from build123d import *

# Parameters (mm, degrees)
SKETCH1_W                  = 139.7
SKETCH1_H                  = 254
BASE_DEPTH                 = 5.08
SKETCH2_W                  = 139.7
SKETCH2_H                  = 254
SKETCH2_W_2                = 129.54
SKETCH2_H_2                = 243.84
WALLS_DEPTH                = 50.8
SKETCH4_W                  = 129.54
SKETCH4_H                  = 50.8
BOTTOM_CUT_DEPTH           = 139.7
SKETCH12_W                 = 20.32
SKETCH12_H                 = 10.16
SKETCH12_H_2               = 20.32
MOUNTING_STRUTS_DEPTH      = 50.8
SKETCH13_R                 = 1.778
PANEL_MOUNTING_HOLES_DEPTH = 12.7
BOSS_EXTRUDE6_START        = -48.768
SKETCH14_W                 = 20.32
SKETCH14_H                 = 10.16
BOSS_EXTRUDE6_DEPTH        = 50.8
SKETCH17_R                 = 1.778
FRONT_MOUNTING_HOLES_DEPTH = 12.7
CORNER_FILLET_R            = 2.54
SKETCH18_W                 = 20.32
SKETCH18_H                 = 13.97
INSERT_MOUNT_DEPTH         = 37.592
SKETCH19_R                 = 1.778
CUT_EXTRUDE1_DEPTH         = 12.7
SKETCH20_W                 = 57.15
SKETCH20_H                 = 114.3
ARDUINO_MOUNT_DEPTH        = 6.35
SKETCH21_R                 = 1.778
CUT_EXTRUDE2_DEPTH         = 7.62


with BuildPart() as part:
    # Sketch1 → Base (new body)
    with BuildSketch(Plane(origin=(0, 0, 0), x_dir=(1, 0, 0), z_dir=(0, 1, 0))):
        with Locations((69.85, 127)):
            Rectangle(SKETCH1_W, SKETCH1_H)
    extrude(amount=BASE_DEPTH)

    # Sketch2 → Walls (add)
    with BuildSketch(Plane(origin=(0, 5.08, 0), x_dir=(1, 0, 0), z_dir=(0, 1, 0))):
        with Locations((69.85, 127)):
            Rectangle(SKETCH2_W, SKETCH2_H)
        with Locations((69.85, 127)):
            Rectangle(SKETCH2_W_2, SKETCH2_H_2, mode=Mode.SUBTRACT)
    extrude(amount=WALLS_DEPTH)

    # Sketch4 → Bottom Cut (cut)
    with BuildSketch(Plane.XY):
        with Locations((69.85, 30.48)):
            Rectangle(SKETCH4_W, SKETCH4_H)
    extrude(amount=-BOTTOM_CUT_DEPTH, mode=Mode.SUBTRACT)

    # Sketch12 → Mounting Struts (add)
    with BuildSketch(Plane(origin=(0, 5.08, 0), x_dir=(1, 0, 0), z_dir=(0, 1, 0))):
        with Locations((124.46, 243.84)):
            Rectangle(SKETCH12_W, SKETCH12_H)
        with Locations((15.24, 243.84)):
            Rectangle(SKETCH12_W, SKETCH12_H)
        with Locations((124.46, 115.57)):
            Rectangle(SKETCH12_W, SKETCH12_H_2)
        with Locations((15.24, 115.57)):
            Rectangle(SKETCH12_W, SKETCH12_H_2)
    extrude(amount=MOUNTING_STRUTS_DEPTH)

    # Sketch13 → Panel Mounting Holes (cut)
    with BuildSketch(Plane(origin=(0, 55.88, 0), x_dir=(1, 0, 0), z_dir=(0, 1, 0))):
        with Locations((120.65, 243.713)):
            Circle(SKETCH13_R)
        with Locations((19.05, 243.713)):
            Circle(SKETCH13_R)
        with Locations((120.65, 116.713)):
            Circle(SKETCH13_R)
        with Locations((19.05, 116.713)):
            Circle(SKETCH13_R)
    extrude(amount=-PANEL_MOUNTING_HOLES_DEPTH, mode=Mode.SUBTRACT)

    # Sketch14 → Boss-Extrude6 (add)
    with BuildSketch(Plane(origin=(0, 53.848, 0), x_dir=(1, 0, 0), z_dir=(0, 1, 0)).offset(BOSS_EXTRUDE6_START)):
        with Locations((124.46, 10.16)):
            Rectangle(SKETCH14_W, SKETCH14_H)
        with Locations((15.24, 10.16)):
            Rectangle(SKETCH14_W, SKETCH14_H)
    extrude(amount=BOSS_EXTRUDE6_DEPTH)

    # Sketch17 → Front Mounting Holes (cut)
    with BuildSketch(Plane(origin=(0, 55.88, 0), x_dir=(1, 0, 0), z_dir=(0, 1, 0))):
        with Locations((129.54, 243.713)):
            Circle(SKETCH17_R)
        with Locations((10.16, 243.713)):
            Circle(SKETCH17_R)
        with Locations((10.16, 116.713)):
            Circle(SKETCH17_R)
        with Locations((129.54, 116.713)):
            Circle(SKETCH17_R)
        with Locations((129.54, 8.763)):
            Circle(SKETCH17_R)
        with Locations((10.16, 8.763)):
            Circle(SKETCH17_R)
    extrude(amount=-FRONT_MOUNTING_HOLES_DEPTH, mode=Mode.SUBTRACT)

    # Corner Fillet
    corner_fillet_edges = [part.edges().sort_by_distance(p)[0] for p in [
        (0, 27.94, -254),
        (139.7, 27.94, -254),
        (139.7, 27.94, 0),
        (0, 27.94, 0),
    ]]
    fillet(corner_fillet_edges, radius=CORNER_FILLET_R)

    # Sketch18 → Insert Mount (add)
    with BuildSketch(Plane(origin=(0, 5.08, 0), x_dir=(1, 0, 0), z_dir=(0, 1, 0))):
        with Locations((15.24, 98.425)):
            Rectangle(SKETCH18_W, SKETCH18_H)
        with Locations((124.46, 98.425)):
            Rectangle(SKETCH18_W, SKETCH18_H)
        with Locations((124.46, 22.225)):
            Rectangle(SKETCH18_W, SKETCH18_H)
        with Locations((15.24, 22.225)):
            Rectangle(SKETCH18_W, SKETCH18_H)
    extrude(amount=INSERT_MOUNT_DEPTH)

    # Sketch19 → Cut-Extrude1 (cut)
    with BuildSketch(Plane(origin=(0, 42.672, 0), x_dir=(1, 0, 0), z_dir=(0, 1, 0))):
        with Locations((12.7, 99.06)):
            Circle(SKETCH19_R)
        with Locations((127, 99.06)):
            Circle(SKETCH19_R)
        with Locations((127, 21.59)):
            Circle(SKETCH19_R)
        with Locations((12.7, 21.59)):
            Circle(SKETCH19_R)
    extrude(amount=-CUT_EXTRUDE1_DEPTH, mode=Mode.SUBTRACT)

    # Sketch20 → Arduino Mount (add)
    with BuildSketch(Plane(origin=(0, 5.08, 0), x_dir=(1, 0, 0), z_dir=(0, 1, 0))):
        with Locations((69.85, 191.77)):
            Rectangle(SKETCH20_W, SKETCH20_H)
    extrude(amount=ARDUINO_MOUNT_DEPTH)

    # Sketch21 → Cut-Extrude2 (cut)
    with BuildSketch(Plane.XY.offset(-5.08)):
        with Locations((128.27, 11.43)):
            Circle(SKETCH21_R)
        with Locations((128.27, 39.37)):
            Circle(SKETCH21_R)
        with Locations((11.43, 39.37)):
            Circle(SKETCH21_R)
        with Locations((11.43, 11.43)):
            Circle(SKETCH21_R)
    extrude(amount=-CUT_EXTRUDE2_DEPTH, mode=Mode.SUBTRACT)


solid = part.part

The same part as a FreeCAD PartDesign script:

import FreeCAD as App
import Part
import Sketcher
from FreeCAD import Vector
Q = App.Units.Quantity


def edges_at(feature, points):
    """Names of the edges that pass closest to the given points."""
    edges = feature.Shape.Edges
    near = lambda p: min(range(len(edges)), key=lambda i: edges[i].distToShape(Part.Vertex(*p))[0])
    return sorted({f"Edge{near(p) + 1}" for p in points})

doc = App.newDocument("Part")
body = doc.addObject("PartDesign::Body", "Body")

sketch1 = body.newObject("Sketcher::SketchObject", "Sketch")
sketch1.AttachmentSupport = (doc.getObject("XZ_Plane"), [""])
sketch1.MapMode = "FlatFace"
sketch1.addGeometry([
    Part.LineSegment(Vector(0, -254, 0), Vector(0, 0, 0)),
    Part.LineSegment(Vector(0, 0, 0), Vector(139.7, 0, 0)),
    Part.LineSegment(Vector(139.7, 0, 0), Vector(139.7, -254, 0)),
    Part.LineSegment(Vector(139.7, -254, 0), Vector(0, -254, 0)),
], False)
sketch1.addConstraint([
    Sketcher.Constraint("Coincident", 0, 2, 1, 1),
    Sketcher.Constraint("Coincident", 1, 2, 2, 1),
    Sketcher.Constraint("Coincident", 2, 2, 3, 1),
    Sketcher.Constraint("Coincident", 3, 2, 0, 1),
    Sketcher.Constraint("Vertical", 0),
    Sketcher.Constraint("Horizontal", 1),
    Sketcher.Constraint("Vertical", 2),
    Sketcher.Constraint("Horizontal", 3),
    Sketcher.Constraint("Coincident", 0, 2, -1, 1),
    Sketcher.Constraint("DistanceY", 0, 1, 0, 2, Q("10 in")),
    Sketcher.Constraint("DistanceX", 1, 1, 1, 2, Q("5.5 in")),
])
pad1 = body.newObject("PartDesign::Pad", "Pad")
pad1.Profile = sketch1
pad1.Length = Q("0.2 in")
pad1.Reversed = True

sketch2 = body.newObject("Sketcher::SketchObject", "Sketch001")
sketch2.AttachmentSupport = (doc.getObject("XZ_Plane"), [""])
sketch2.MapMode = "FlatFace"
sketch2.AttachmentOffset = App.Placement(Vector(0, 0, -0.2 * 25.4), App.Rotation())
sketch2.addGeometry([
    Part.LineSegment(Vector(0, -254, 0), Vector(0, 0, 0)),
    Part.LineSegment(Vector(0, 0, 0), Vector(139.7, 0, 0)),
    Part.LineSegment(Vector(139.7, 0, 0), Vector(139.7, -254, 0)),
    Part.LineSegment(Vector(139.7, -254, 0), Vector(0, -254, 0)),
    Part.LineSegment(Vector(134.62, -5.08, 0), Vector(5.08, -5.08, 0)),
    Part.LineSegment(Vector(5.08, -5.08, 0), Vector(5.08, -248.92, 0)),
    Part.LineSegment(Vector(5.08, -248.92, 0), Vector(134.62, -248.92, 0)),
    Part.LineSegment(Vector(134.62, -248.92, 0), Vector(134.62, -5.08, 0)),
], False)
sketch2.addConstraint([
    Sketcher.Constraint("Coincident", 0, 2, 1, 1),
    Sketcher.Constraint("Coincident", 1, 2, 2, 1),
    Sketcher.Constraint("Coincident", 2, 2, 3, 1),
    Sketcher.Constraint("Coincident", 3, 2, 0, 1),
    Sketcher.Constraint("Coincident", 4, 2, 5, 1),
    Sketcher.Constraint("Coincident", 5, 2, 6, 1),
    Sketcher.Constraint("Coincident", 6, 2, 7, 1),
    Sketcher.Constraint("Coincident", 7, 2, 4, 1),
    Sketcher.Constraint("Vertical", 0),
    Sketcher.Constraint("Horizontal", 1),
    Sketcher.Constraint("Vertical", 2),
    Sketcher.Constraint("Horizontal", 3),
    Sketcher.Constraint("Horizontal", 4),
    Sketcher.Constraint("Vertical", 5),
    Sketcher.Constraint("Horizontal", 6),
    Sketcher.Constraint("Vertical", 7),
    Sketcher.Constraint("Coincident", 0, 2, -1, 1),
    Sketcher.Constraint("DistanceY", 0, 1, 0, 2, Q("10 in")),
    Sketcher.Constraint("DistanceX", 1, 1, 1, 2, Q("5.5 in")),
    Sketcher.Constraint("DistanceX", 4, 2, 4, 1, Q("5.1 in")),
    Sketcher.Constraint("DistanceY", 5, 2, 5, 1, Q("9.6 in")),
    Sketcher.Constraint("DistanceX", -1, 1, 4, 2, Q("0.2 in")),
    Sketcher.Constraint("DistanceY", 4, 2, -1, 1, Q("0.2 in")),
])
pad2 = body.newObject("PartDesign::Pad", "Pad001")
pad2.Profile = sketch2
pad2.Length = Q("2 in")
pad2.Reversed = True

sketch3 = body.newObject("Sketcher::SketchObject", "Sketch002")
sketch3.AttachmentSupport = (doc.getObject("XY_Plane"), [""])
sketch3.MapMode = "FlatFace"
sketch3.addGeometry([
    Part.LineSegment(Vector(5.08, 55.88, 0), Vector(5.08, 5.08, 0)),
    Part.LineSegment(Vector(5.08, 5.08, 0), Vector(134.62, 5.08, 0)),
    Part.LineSegment(Vector(134.62, 5.08, 0), Vector(134.62, 55.88, 0)),
    Part.LineSegment(Vector(134.62, 55.88, 0), Vector(5.08, 55.88, 0)),
], False)
sketch3.addConstraint([
    Sketcher.Constraint("Coincident", 0, 2, 1, 1),
    Sketcher.Constraint("Coincident", 1, 2, 2, 1),
    Sketcher.Constraint("Coincident", 2, 2, 3, 1),
    Sketcher.Constraint("Coincident", 3, 2, 0, 1),
    Sketcher.Constraint("Vertical", 0),
    Sketcher.Constraint("Horizontal", 1),
    Sketcher.Constraint("Vertical", 2),
    Sketcher.Constraint("Horizontal", 3),
    Sketcher.Constraint("DistanceY", 0, 2, 0, 1, Q("2 in")),
    Sketcher.Constraint("DistanceX", 1, 1, 1, 2, Q("5.1 in")),
    Sketcher.Constraint("DistanceX", -1, 1, 0, 2, Q("0.2 in")),
    Sketcher.Constraint("DistanceY", -1, 1, 0, 2, Q("0.2 in")),
])
pocket1 = body.newObject("PartDesign::Pocket", "Pocket")
pocket1.Profile = sketch3
pocket1.Length = Q("5.5 in")

sketch4 = body.newObject("Sketcher::SketchObject", "Sketch003")
sketch4.AttachmentSupport = (doc.getObject("XZ_Plane"), [""])
sketch4.MapMode = "FlatFace"
sketch4.AttachmentOffset = App.Placement(Vector(0, 0, -0.2 * 25.4), App.Rotation())
sketch4.addGeometry([
    Part.LineSegment(Vector(114.3, -248.92, 0), Vector(114.3, -238.76, 0)),
    Part.LineSegment(Vector(114.3, -238.76, 0), Vector(134.62, -238.76, 0)),
    Part.LineSegment(Vector(134.62, -238.76, 0), Vector(134.62, -248.92, 0)),
    Part.LineSegment(Vector(134.62, -248.92, 0), Vector(114.3, -248.92, 0)),
    Part.LineSegment(Vector(5.08, -248.92, 0), Vector(5.08, -238.76, 0)),
    Part.LineSegment(Vector(5.08, -238.76, 0), Vector(25.4, -238.76, 0)),
    Part.LineSegment(Vector(25.4, -238.76, 0), Vector(25.4, -248.92, 0)),
    Part.LineSegment(Vector(25.4, -248.92, 0), Vector(5.08, -248.92, 0)),
    Part.LineSegment(Vector(114.3, -125.73, 0), Vector(114.3, -105.41, 0)),
    Part.LineSegment(Vector(114.3, -105.41, 0), Vector(134.62, -105.41, 0)),
    Part.LineSegment(Vector(134.62, -105.41, 0), Vector(134.62, -125.73, 0)),
    Part.LineSegment(Vector(134.62, -125.73, 0), Vector(114.3, -125.73, 0)),
    Part.LineSegment(Vector(5.08, -125.73, 0), Vector(5.08, -105.41, 0)),
    Part.LineSegment(Vector(5.08, -105.41, 0), Vector(25.4, -105.41, 0)),
    Part.LineSegment(Vector(25.4, -105.41, 0), Vector(25.4, -125.73, 0)),
    Part.LineSegment(Vector(25.4, -125.73, 0), Vector(5.08, -125.73, 0)),
], False)
sketch4.addConstraint([
    Sketcher.Constraint("Coincident", 0, 2, 1, 1),
    Sketcher.Constraint("Coincident", 1, 2, 2, 1),
    Sketcher.Constraint("Coincident", 2, 2, 3, 1),
    Sketcher.Constraint("Coincident", 3, 2, 0, 1),
    Sketcher.Constraint("Coincident", 4, 2, 5, 1),
    Sketcher.Constraint("Coincident", 5, 2, 6, 1),
    Sketcher.Constraint("Coincident", 6, 2, 7, 1),
    Sketcher.Constraint("Coincident", 7, 2, 4, 1),
    Sketcher.Constraint("Coincident", 8, 2, 9, 1),
    Sketcher.Constraint("Coincident", 9, 2, 10, 1),
    Sketcher.Constraint("Coincident", 10, 2, 11, 1),
    Sketcher.Constraint("Coincident", 11, 2, 8, 1),
    Sketcher.Constraint("Coincident", 12, 2, 13, 1),
    Sketcher.Constraint("Coincident", 13, 2, 14, 1),
    Sketcher.Constraint("Coincident", 14, 2, 15, 1),
    Sketcher.Constraint("Coincident", 15, 2, 12, 1),
    Sketcher.Constraint("Vertical", 0),
    Sketcher.Constraint("Horizontal", 1),
    Sketcher.Constraint("Vertical", 2),
    Sketcher.Constraint("Horizontal", 3),
    Sketcher.Constraint("Vertical", 4),
    Sketcher.Constraint("Horizontal", 5),
    Sketcher.Constraint("Vertical", 6),
    Sketcher.Constraint("Horizontal", 7),
    Sketcher.Constraint("Vertical", 8),
    Sketcher.Constraint("Horizontal", 9),
    Sketcher.Constraint("Vertical", 10),
    Sketcher.Constraint("Horizontal", 11),
    Sketcher.Constraint("Vertical", 12),
    Sketcher.Constraint("Horizontal", 13),
    Sketcher.Constraint("Vertical", 14),
    Sketcher.Constraint("Horizontal", 15),
    Sketcher.Constraint("Horizontal", 1, 2, 4, 2),
    Sketcher.Constraint("Horizontal", 3, 2, 6, 2),
    Sketcher.Constraint("Horizontal", 9, 2, 12, 2),
    Sketcher.Constraint("Horizontal", 11, 2, 14, 2),
    Sketcher.Constraint("Vertical", 3, 2, 8, 2),
    Sketcher.Constraint("Vertical", 2, 2, 9, 2),
    Sketcher.Constraint("Vertical", 7, 2, 12, 2),
    Sketcher.Constraint("Vertical", 6, 2, 13, 2),
    Sketcher.Constraint("Equal", 3, 5),
    Sketcher.Constraint("Equal", 15, 8),
    Sketcher.Constraint("DistanceX", 1, 1, 1, 2, Q("0.8 in")),
    Sketcher.Constraint("DistanceY", 0, 1, 0, 2, Q("0.4 in")),
    Sketcher.Constraint("DistanceX", -1, 1, 5, 2, Q("1 in")),
    Sketcher.Constraint("DistanceX", -1, 1, 0, 2, Q("4.5 in")),
    Sketcher.Constraint("DistanceY", 0, 2, -1, 1, Q("9.4 in")),
    Sketcher.Constraint("DistanceY", 8, 2, -1, 1, Q("4.15 in")),
])
pad3 = body.newObject("PartDesign::Pad", "Pad002")
pad3.Profile = sketch4
pad3.Length = Q("2 in")
pad3.Reversed = True

sketch5 = body.newObject("Sketcher::SketchObject", "Sketch004")
sketch5.AttachmentSupport = (doc.getObject("XZ_Plane"), [""])
sketch5.MapMode = "FlatFace"
sketch5.AttachmentOffset = App.Placement(Vector(0, 0, -2.2 * 25.4), App.Rotation())
sketch5.addGeometry([
    Part.Circle(Vector(120.65, -243.713, 0), Vector(0, 0, 1), 1.778),
    Part.Circle(Vector(19.05, -243.713, 0), Vector(0, 0, 1), 1.778),
    Part.Circle(Vector(120.65, -116.713, 0), Vector(0, 0, 1), 1.778),
    Part.Circle(Vector(19.05, -116.713, 0), Vector(0, 0, 1), 1.778),
], False)
sketch5.addConstraint([
    Sketcher.Constraint("Equal", 0, 1),
    Sketcher.Constraint("Equal", 1, 2),
    Sketcher.Constraint("Equal", 2, 3),
    Sketcher.Constraint("Horizontal", 0, 3, 1, 3),
    Sketcher.Constraint("Horizontal", 2, 3, 3, 3),
    Sketcher.Constraint("Vertical", 0, 3, 2, 3),
    Sketcher.Constraint("Vertical", 1, 3, 3, 3),
    Sketcher.Constraint("Diameter", 0, Q("0.14 in")),
    Sketcher.Constraint("DistanceX", 1, 3, 0, 3, Q("4 in")),
    Sketcher.Constraint("DistanceY", 0, 3, 2, 3, Q("5 in")),
    Sketcher.Constraint("DistanceX", -1, 1, 0, 3, Q("4.75 in")),
    Sketcher.Constraint("DistanceY", 0, 3, -1, 1, Q("9.595 in")),
])
pocket2 = body.newObject("PartDesign::Pocket", "Pocket001")
pocket2.Profile = sketch5
pocket2.Length = Q("0.5 in")
pocket2.Reversed = True

sketch6 = body.newObject("Sketcher::SketchObject", "Sketch005")
sketch6.AttachmentSupport = (doc.getObject("XZ_Plane"), [""])
sketch6.MapMode = "FlatFace"
sketch6.AttachmentOffset = App.Placement(Vector(0, 0, -0.2 * 25.4), App.Rotation())
sketch6.addGeometry([
    Part.LineSegment(Vector(114.3, -15.24, 0), Vector(114.3, -5.08, 0)),
    Part.LineSegment(Vector(114.3, -5.08, 0), Vector(134.62, -5.08, 0)),
    Part.LineSegment(Vector(134.62, -5.08, 0), Vector(134.62, -15.24, 0)),
    Part.LineSegment(Vector(134.62, -15.24, 0), Vector(114.3, -15.24, 0)),
    Part.LineSegment(Vector(5.08, -15.24, 0), Vector(5.08, -5.08, 0)),
    Part.LineSegment(Vector(5.08, -5.08, 0), Vector(25.4, -5.08, 0)),
    Part.LineSegment(Vector(25.4, -5.08, 0), Vector(25.4, -15.24, 0)),
    Part.LineSegment(Vector(25.4, -15.24, 0), Vector(5.08, -15.24, 0)),
], False)
sketch6.addConstraint([
    Sketcher.Constraint("Coincident", 0, 2, 1, 1),
    Sketcher.Constraint("Coincident", 1, 2, 2, 1),
    Sketcher.Constraint("Coincident", 2, 2, 3, 1),
    Sketcher.Constraint("Coincident", 3, 2, 0, 1),
    Sketcher.Constraint("Coincident", 4, 2, 5, 1),
    Sketcher.Constraint("Coincident", 5, 2, 6, 1),
    Sketcher.Constraint("Coincident", 6, 2, 7, 1),
    Sketcher.Constraint("Coincident", 7, 2, 4, 1),
    Sketcher.Constraint("Vertical", 0),
    Sketcher.Constraint("Horizontal", 1),
    Sketcher.Constraint("Vertical", 2),
    Sketcher.Constraint("Horizontal", 3),
    Sketcher.Constraint("Vertical", 4),
    Sketcher.Constraint("Horizontal", 5),
    Sketcher.Constraint("Vertical", 6),
    Sketcher.Constraint("Horizontal", 7),
    Sketcher.Constraint("Horizontal", 1, 2, 4, 2),
    Sketcher.Constraint("Horizontal", 3, 2, 6, 2),
    Sketcher.Constraint("Equal", 3, 5),
    Sketcher.Constraint("DistanceX", 1, 1, 1, 2, Q("0.8 in")),
    Sketcher.Constraint("DistanceY", 0, 1, 0, 2, Q("0.4 in")),
    Sketcher.Constraint("DistanceX", -1, 1, 5, 2, Q("1 in")),
    Sketcher.Constraint("DistanceX", -1, 1, 0, 2, Q("4.5 in")),
    Sketcher.Constraint("DistanceY", 0, 2, -1, 1, Q("0.2 in")),
])
pad4 = body.newObject("PartDesign::Pad", "Pad003")
pad4.Profile = sketch6
pad4.Length = Q("2 in")
pad4.Reversed = True

sketch7 = body.newObject("Sketcher::SketchObject", "Sketch006")
sketch7.AttachmentSupport = (doc.getObject("XZ_Plane"), [""])
sketch7.MapMode = "FlatFace"
sketch7.AttachmentOffset = App.Placement(Vector(0, 0, -2.2 * 25.4), App.Rotation())
sketch7.addGeometry([
    Part.Circle(Vector(129.54, -243.713, 0), Vector(0, 0, 1), 1.778),
    Part.Circle(Vector(10.16, -243.713, 0), Vector(0, 0, 1), 1.778),
    Part.Circle(Vector(10.16, -116.713, 0), Vector(0, 0, 1), 1.778),
    Part.Circle(Vector(129.54, -116.713, 0), Vector(0, 0, 1), 1.778),
    Part.Circle(Vector(129.54, -8.763, 0), Vector(0, 0, 1), 1.778),
    Part.Circle(Vector(10.16, -8.763, 0), Vector(0, 0, 1), 1.778),
], False)
sketch7.addConstraint([
    Sketcher.Constraint("Equal", 0, 1),
    Sketcher.Constraint("Equal", 1, 2),
    Sketcher.Constraint("Equal", 2, 3),
    Sketcher.Constraint("Equal", 3, 4),
    Sketcher.Constraint("Equal", 4, 5),
    Sketcher.Constraint("Horizontal", 0, 3, 1, 3),
    Sketcher.Constraint("Horizontal", 2, 3, 3, 3),
    Sketcher.Constraint("Horizontal", 4, 3, 5, 3),
    Sketcher.Constraint("Vertical", 1, 3, 2, 3),
    Sketcher.Constraint("Vertical", 0, 3, 3, 3),
    Sketcher.Constraint("Vertical", 3, 3, 4, 3),
    Sketcher.Constraint("Vertical", 2, 3, 5, 3),
    Sketcher.Constraint("Diameter", 0, Q("0.14 in")),
    Sketcher.Constraint("DistanceY", 1, 3, 2, 3, Q("5 in")),
    Sketcher.Constraint("DistanceX", -1, 1, 0, 3, Q("5.1 in")),
    Sketcher.Constraint("DistanceX", -1, 1, 1, 3, Q("0.4 in")),
    Sketcher.Constraint("DistanceY", 3, 3, 4, 3, Q("4.25 in")),
    Sketcher.Constraint("DistanceY", 0, 3, -1, 1, Q("9.595 in")),
])
pocket3 = body.newObject("PartDesign::Pocket", "Pocket002")
pocket3.Profile = sketch7
pocket3.Length = Q("0.5 in")
pocket3.Reversed = True
doc.recompute()

fillet = body.newObject("PartDesign::Fillet", "Fillet")
fillet.Base = (pocket3, edges_at(pocket3, [
    (0, 27.94, -254),
    (139.7, 27.94, -254),
    (139.7, 27.94, 0),
    (0, 27.94, 0),
]))
fillet.Radius = Q("0.1 in")

sketch8 = body.newObject("Sketcher::SketchObject", "Sketch007")
sketch8.AttachmentSupport = (doc.getObject("XZ_Plane"), [""])
sketch8.MapMode = "FlatFace"
sketch8.AttachmentOffset = App.Placement(Vector(0, 0, -0.2 * 25.4), App.Rotation())
sketch8.addGeometry([
    Part.LineSegment(Vector(5.08, -105.41, 0), Vector(5.08, -91.44, 0)),
    Part.LineSegment(Vector(5.08, -91.44, 0), Vector(25.4, -91.44, 0)),
    Part.LineSegment(Vector(25.4, -91.44, 0), Vector(25.4, -105.41, 0)),
    Part.LineSegment(Vector(25.4, -105.41, 0), Vector(5.08, -105.41, 0)),
    Part.LineSegment(Vector(114.3, -105.41, 0), Vector(114.3, -91.44, 0)),
    Part.LineSegment(Vector(114.3, -91.44, 0), Vector(134.62, -91.44, 0)),
    Part.LineSegment(Vector(134.62, -91.44, 0), Vector(134.62, -105.41, 0)),
    Part.LineSegment(Vector(134.62, -105.41, 0), Vector(114.3, -105.41, 0)),
    Part.LineSegment(Vector(114.3, -29.21, 0), Vector(114.3, -15.24, 0)),
    Part.LineSegment(Vector(114.3, -15.24, 0), Vector(134.62, -15.24, 0)),
    Part.LineSegment(Vector(134.62, -15.24, 0), Vector(134.62, -29.21, 0)),
    Part.LineSegment(Vector(134.62, -29.21, 0), Vector(114.3, -29.21, 0)),
    Part.LineSegment(Vector(5.08, -29.21, 0), Vector(5.08, -15.24, 0)),
    Part.LineSegment(Vector(5.08, -15.24, 0), Vector(25.4, -15.24, 0)),
    Part.LineSegment(Vector(25.4, -15.24, 0), Vector(25.4, -29.21, 0)),
    Part.LineSegment(Vector(25.4, -29.21, 0), Vector(5.08, -29.21, 0)),
], False)
sketch8.addConstraint([
    Sketcher.Constraint("Coincident", 0, 2, 1, 1),
    Sketcher.Constraint("Coincident", 1, 2, 2, 1),
    Sketcher.Constraint("Coincident", 2, 2, 3, 1),
    Sketcher.Constraint("Coincident", 3, 2, 0, 1),
    Sketcher.Constraint("Coincident", 4, 2, 5, 1),
    Sketcher.Constraint("Coincident", 5, 2, 6, 1),
    Sketcher.Constraint("Coincident", 6, 2, 7, 1),
    Sketcher.Constraint("Coincident", 7, 2, 4, 1),
    Sketcher.Constraint("Coincident", 8, 2, 9, 1),
    Sketcher.Constraint("Coincident", 9, 2, 10, 1),
    Sketcher.Constraint("Coincident", 10, 2, 11, 1),
    Sketcher.Constraint("Coincident", 11, 2, 8, 1),
    Sketcher.Constraint("Coincident", 12, 2, 13, 1),
    Sketcher.Constraint("Coincident", 13, 2, 14, 1),
    Sketcher.Constraint("Coincident", 14, 2, 15, 1),
    Sketcher.Constraint("Coincident", 15, 2, 12, 1),
    Sketcher.Constraint("Vertical", 0),
    Sketcher.Constraint("Horizontal", 1),
    Sketcher.Constraint("Vertical", 2),
    Sketcher.Constraint("Horizontal", 3),
    Sketcher.Constraint("Vertical", 4),
    Sketcher.Constraint("Horizontal", 5),
    Sketcher.Constraint("Vertical", 6),
    Sketcher.Constraint("Horizontal", 7),
    Sketcher.Constraint("Vertical", 8),
    Sketcher.Constraint("Horizontal", 9),
    Sketcher.Constraint("Vertical", 10),
    Sketcher.Constraint("Horizontal", 11),
    Sketcher.Constraint("Vertical", 12),
    Sketcher.Constraint("Horizontal", 13),
    Sketcher.Constraint("Vertical", 14),
    Sketcher.Constraint("Horizontal", 15),
    Sketcher.Constraint("Horizontal", 1, 2, 4, 2),
    Sketcher.Constraint("Horizontal", 3, 2, 6, 2),
    Sketcher.Constraint("Horizontal", 9, 2, 12, 2),
    Sketcher.Constraint("Horizontal", 11, 2, 14, 2),
    Sketcher.Constraint("Vertical", 7, 2, 8, 2),
    Sketcher.Constraint("Vertical", 6, 2, 9, 2),
    Sketcher.Constraint("Vertical", 3, 2, 12, 2),
    Sketcher.Constraint("Vertical", 2, 2, 13, 2),
    Sketcher.Constraint("Equal", 3, 5),
    Sketcher.Constraint("Equal", 6, 8),
    Sketcher.Constraint("DistanceX", 1, 1, 1, 2, Q("0.8 in")),
    Sketcher.Constraint("DistanceX", -1, 1, 1, 2, Q("1 in")),
    Sketcher.Constraint("DistanceY", 4, 2, 8, 2, Q("3 in")),
    Sketcher.Constraint("DistanceY", 0, 1, 0, 2, Q("0.55 in")),
    Sketcher.Constraint("DistanceY", 0, 2, -1, 1, Q("3.6 in")),
    Sketcher.Constraint("DistanceX", -1, 1, 4, 2, Q("4.5 in")),
])
pad5 = body.newObject("PartDesign::Pad", "Pad004")
pad5.Profile = sketch8
pad5.Length = Q("1.48 in")
pad5.Reversed = True

sketch9 = body.newObject("Sketcher::SketchObject", "Sketch008")
sketch9.AttachmentSupport = (doc.getObject("XZ_Plane"), [""])
sketch9.MapMode = "FlatFace"
sketch9.AttachmentOffset = App.Placement(Vector(0, 0, -1.68 * 25.4), App.Rotation())
sketch9.addGeometry([
    Part.Circle(Vector(12.7, -99.06, 0), Vector(0, 0, 1), 1.778),
    Part.Circle(Vector(127, -99.06, 0), Vector(0, 0, 1), 1.778),
    Part.Circle(Vector(127, -21.59, 0), Vector(0, 0, 1), 1.778),
    Part.Circle(Vector(12.7, -21.59, 0), Vector(0, 0, 1), 1.778),
], False)
sketch9.addConstraint([
    Sketcher.Constraint("Equal", 0, 1),
    Sketcher.Constraint("Equal", 1, 2),
    Sketcher.Constraint("Equal", 2, 3),
    Sketcher.Constraint("Horizontal", 0, 3, 1, 3),
    Sketcher.Constraint("Horizontal", 2, 3, 3, 3),
    Sketcher.Constraint("Vertical", 1, 3, 2, 3),
    Sketcher.Constraint("Vertical", 0, 3, 3, 3),
    Sketcher.Constraint("Diameter", 0, Q("0.14 in")),
    Sketcher.Constraint("DistanceX", -1, 1, 1, 3, Q("5 in")),
    Sketcher.Constraint("DistanceX", -1, 1, 0, 3, Q("0.5 in")),
    Sketcher.Constraint("DistanceY", 0, 3, -1, 1, Q("3.9 in")),
    Sketcher.Constraint("DistanceY", 2, 3, -1, 1, Q("0.85 in")),
])
pocket4 = body.newObject("PartDesign::Pocket", "Pocket003")
pocket4.Profile = sketch9
pocket4.Length = Q("0.5 in")
pocket4.Reversed = True

sketch10 = body.newObject("Sketcher::SketchObject", "Sketch009")
sketch10.AttachmentSupport = (doc.getObject("XZ_Plane"), [""])
sketch10.MapMode = "FlatFace"
sketch10.AttachmentOffset = App.Placement(Vector(0, 0, -0.2 * 25.4), App.Rotation())
sketch10.addGeometry([
    Part.LineSegment(Vector(41.275, -248.92, 0), Vector(41.275, -134.62, 0)),
    Part.LineSegment(Vector(41.275, -134.62, 0), Vector(98.425, -134.62, 0)),
    Part.LineSegment(Vector(98.425, -134.62, 0), Vector(98.425, -248.92, 0)),
    Part.LineSegment(Vector(98.425, -248.92, 0), Vector(41.275, -248.92, 0)),
], False)
sketch10.addConstraint([
    Sketcher.Constraint("Coincident", 0, 2, 1, 1),
    Sketcher.Constraint("Coincident", 1, 2, 2, 1),
    Sketcher.Constraint("Coincident", 2, 2, 3, 1),
    Sketcher.Constraint("Coincident", 3, 2, 0, 1),
    Sketcher.Constraint("Vertical", 0),
    Sketcher.Constraint("Horizontal", 1),
    Sketcher.Constraint("Vertical", 2),
    Sketcher.Constraint("Horizontal", 3),
    Sketcher.Constraint("DistanceY", 0, 1, 0, 2, Q("4.5 in")),
    Sketcher.Constraint("DistanceX", 1, 1, 1, 2, Q("2.25 in")),
    Sketcher.Constraint("DistanceY", 0, 2, -1, 1, Q("5.3 in")),
    Sketcher.Constraint("DistanceX", -1, 1, 0, 2, Q("1.625 in")),
])
pad6 = body.newObject("PartDesign::Pad", "Pad005")
pad6.Profile = sketch10
pad6.Length = Q("0.25 in")
pad6.Reversed = True

sketch11 = body.newObject("Sketcher::SketchObject", "Sketch010")
sketch11.AttachmentSupport = (doc.getObject("XY_Plane"), [""])
sketch11.MapMode = "FlatFace"
sketch11.AttachmentOffset = App.Placement(Vector(0, 0, -0.2 * 25.4), App.Rotation())
sketch11.addGeometry([
    Part.Circle(Vector(128.27, 11.43, 0), Vector(0, 0, 1), 1.778),
    Part.Circle(Vector(128.27, 39.37, 0), Vector(0, 0, 1), 1.778),
    Part.Circle(Vector(11.43, 39.37, 0), Vector(0, 0, 1), 1.778),
    Part.Circle(Vector(11.43, 11.43, 0), Vector(0, 0, 1), 1.778),
], False)
sketch11.addConstraint([
    Sketcher.Constraint("Equal", 0, 1),
    Sketcher.Constraint("Equal", 1, 2),
    Sketcher.Constraint("Equal", 2, 3),
    Sketcher.Constraint("Horizontal", 1, 3, 2, 3),
    Sketcher.Constraint("Horizontal", 0, 3, 3, 3),
    Sketcher.Constraint("Vertical", 0, 3, 1, 3),
    Sketcher.Constraint("Vertical", 2, 3, 3, 3),
    Sketcher.Constraint("Diameter", 0, Q("0.14 in")),
    Sketcher.Constraint("DistanceY", 0, 3, 1, 3, Q("1.1 in")),
    Sketcher.Constraint("DistanceX", 2, 3, 1, 3, Q("4.6 in")),
    Sketcher.Constraint("DistanceX", -1, 1, 0, 3, Q("5.05 in")),
    Sketcher.Constraint("DistanceY", -1, 1, 0, 3, Q("0.45 in")),
])
pocket5 = body.newObject("PartDesign::Pocket", "Pocket004")
pocket5.Profile = sketch11
pocket5.Length = Q("0.3 in")

doc.recompute()
